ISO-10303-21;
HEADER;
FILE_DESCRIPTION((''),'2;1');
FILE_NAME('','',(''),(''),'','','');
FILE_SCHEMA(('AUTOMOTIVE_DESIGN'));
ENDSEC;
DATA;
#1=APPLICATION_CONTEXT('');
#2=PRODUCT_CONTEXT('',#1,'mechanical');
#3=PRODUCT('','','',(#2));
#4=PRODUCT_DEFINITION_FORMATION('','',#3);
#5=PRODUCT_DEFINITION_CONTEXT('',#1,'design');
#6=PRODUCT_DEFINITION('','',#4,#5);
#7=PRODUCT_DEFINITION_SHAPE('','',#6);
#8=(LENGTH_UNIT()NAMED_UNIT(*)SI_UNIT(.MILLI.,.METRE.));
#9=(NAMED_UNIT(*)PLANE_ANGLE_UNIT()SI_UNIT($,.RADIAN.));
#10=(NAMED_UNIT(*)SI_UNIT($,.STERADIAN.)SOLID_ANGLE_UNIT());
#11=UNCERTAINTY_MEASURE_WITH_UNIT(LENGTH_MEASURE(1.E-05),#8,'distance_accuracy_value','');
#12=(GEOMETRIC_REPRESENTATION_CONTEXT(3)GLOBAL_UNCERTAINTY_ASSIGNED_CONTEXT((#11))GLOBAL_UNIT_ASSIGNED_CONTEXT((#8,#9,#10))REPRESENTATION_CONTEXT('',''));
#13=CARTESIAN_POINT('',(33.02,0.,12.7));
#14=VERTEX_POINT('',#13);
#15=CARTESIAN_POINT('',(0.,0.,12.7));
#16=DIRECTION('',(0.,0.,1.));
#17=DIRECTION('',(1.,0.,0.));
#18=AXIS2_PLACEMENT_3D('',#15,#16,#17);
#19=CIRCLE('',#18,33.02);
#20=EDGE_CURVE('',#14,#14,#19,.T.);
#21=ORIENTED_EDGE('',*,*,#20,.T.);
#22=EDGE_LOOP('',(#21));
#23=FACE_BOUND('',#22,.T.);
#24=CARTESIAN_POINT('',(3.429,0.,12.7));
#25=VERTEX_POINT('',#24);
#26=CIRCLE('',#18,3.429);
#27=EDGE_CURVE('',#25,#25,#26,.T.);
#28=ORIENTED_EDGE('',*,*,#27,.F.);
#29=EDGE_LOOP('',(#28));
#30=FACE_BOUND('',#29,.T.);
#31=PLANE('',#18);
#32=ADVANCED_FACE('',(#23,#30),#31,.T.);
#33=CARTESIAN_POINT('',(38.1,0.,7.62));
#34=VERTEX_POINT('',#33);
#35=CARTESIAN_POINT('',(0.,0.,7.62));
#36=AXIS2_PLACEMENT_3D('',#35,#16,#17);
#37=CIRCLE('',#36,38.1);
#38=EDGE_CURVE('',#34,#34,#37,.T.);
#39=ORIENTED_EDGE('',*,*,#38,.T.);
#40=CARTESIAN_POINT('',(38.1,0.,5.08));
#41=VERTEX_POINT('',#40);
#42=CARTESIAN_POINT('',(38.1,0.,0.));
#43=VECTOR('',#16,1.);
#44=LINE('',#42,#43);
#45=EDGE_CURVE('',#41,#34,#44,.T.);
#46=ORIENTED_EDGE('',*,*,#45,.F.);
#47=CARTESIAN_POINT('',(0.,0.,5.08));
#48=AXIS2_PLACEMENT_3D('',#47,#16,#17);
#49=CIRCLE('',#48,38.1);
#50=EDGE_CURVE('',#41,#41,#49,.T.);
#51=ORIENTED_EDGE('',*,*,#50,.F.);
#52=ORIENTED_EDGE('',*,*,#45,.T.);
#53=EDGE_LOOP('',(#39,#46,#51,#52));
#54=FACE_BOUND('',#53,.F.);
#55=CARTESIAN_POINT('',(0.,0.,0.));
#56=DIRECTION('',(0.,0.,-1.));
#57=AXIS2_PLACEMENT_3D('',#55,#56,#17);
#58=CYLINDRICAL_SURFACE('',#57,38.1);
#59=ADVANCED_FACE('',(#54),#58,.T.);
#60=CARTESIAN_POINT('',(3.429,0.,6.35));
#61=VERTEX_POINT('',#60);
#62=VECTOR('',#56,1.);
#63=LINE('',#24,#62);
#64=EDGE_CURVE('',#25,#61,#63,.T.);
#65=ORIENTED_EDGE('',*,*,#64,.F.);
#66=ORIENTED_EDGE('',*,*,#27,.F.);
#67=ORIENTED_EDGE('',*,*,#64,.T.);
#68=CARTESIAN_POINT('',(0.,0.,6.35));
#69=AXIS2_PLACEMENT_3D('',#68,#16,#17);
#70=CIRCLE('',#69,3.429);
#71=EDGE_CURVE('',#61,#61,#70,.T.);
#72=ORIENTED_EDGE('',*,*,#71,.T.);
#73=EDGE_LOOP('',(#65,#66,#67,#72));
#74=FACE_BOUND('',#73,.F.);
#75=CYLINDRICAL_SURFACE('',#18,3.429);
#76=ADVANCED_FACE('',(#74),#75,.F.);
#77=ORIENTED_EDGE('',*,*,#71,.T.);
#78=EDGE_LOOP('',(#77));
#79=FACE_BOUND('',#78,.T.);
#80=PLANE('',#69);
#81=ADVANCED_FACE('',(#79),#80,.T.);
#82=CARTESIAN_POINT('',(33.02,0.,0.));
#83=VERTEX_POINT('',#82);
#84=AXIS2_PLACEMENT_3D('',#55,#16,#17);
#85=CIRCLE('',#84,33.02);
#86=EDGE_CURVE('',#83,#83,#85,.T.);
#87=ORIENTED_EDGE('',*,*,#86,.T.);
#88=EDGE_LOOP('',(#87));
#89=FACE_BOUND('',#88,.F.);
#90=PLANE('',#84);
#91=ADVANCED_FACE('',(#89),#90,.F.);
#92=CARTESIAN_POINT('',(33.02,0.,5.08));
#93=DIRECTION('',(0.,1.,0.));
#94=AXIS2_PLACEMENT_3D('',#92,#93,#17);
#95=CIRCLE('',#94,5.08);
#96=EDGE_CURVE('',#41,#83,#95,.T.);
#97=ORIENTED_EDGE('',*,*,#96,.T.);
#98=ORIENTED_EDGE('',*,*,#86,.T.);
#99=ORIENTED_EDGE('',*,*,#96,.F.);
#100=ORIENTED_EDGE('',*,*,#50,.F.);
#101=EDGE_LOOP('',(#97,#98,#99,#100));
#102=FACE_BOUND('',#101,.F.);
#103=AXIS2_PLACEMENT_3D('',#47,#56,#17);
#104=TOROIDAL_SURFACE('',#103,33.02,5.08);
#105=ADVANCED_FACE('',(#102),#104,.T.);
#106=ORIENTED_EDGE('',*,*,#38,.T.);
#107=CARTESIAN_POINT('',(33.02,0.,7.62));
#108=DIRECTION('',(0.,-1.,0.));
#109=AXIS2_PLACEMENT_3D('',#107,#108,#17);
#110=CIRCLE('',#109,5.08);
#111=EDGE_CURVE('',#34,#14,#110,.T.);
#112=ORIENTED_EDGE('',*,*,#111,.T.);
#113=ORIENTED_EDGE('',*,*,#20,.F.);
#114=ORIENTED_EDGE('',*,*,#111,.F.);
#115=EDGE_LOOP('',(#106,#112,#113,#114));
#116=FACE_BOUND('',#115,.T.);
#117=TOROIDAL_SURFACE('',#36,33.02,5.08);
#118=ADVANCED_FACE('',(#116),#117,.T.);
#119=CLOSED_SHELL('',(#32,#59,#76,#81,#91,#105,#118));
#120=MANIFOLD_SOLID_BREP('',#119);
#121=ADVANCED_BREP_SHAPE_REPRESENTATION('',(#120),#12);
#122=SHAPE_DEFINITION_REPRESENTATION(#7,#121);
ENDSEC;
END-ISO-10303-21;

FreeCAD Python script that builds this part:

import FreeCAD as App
import Part
import Sketcher
Q = App.Units.Quantity


def edges_at(feature, points):
    """Names of the edges that pass closest to the given points."""
    edges = feature.Shape.Edges
    near = lambda p: min(range(len(edges)), key=lambda i: edges[i].distToShape(Part.Vertex(*p))[0])
    return sorted({f"Edge{near(p) + 1}" for p in points})

doc = App.newDocument("Part")
body = doc.addObject("PartDesign::Body", "Body")

# Sketch on XY plane
sketch1 = doc.addObject("Sketcher::SketchObject", "Sketch")
body.addObject(sketch1)
sketch1.AttachmentSupport = (doc.XY_Plane, [""])
sketch1.MapMode = "FlatFace"
sketch1.addGeometry(Part.Circle(App.Vector(0, 0, 0), App.Vector(0, 0, 1), 38), False)
sketch1.addConstraint([
    Sketcher.Constraint("Coincident", 0, 3, -1, 1),
    Sketcher.Constraint("Diameter", 0, Q("3 in")),
])
pad1 = doc.addObject("PartDesign::Pad", "Pad")
body.addObject(pad1)
pad1.Profile = sketch1
pad1.Length = Q("0.5 in")
doc.recompute()

fillet = doc.addObject("PartDesign::Fillet", "Fillet")
body.addObject(fillet)
fillet.Base = (pad1, edges_at(pad1, [(-38.1, 0, 0), (-38.1, 0, 12.7)]))
fillet.Radius = Q("0.2 in")

# Sketch on XY plane
sketch2 = doc.addObject("Sketcher::SketchObject", "Sketch001")
body.addObject(sketch2)
sketch2.AttachmentSupport = (doc.XY_Plane, [""])
sketch2.MapMode = "FlatFace"
sketch2.AttachmentOffset = App.Placement(App.Vector(0, 0, 0.5 * 25.4), App.Rotation())
sketch2.addGeometry(Part.Circle(App.Vector(0, 0, 0), App.Vector(0, 0, 1), 3.4), False)
sketch2.addConstraint([
    Sketcher.Constraint("Coincident", 0, 3, -1, 1),
    Sketcher.Constraint("Diameter", 0, Q("0.27 in")),
])
pocket1 = doc.addObject("PartDesign::Pocket", "Pocket")
body.addObject(pocket1)
pocket1.Profile = sketch2
pocket1.Length = Q("0.25 in")

doc.recompute()
